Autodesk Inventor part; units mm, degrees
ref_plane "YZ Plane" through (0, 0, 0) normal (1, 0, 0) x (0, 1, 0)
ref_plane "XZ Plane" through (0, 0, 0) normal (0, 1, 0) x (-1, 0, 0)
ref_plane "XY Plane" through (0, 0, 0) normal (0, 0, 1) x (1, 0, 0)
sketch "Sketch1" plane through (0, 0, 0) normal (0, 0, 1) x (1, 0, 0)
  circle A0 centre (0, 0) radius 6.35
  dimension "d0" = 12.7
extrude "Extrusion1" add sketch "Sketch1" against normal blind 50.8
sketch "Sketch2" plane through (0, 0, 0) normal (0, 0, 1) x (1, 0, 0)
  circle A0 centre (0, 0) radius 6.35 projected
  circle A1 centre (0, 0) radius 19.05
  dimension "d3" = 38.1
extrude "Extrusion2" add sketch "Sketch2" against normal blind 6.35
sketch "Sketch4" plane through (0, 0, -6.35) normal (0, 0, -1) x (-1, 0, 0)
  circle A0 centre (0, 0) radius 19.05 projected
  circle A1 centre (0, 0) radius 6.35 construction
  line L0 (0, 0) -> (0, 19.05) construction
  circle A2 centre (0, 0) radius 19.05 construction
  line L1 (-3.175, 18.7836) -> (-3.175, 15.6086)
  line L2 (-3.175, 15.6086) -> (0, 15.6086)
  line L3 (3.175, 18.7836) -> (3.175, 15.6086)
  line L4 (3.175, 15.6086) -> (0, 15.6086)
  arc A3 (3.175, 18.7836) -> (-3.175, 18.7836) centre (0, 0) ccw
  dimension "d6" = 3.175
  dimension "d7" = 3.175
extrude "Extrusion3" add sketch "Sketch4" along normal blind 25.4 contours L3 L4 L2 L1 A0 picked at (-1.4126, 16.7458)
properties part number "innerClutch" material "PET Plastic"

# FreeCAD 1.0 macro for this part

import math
import FreeCAD as App
import Part
import Sketcher
Q = App.Units.Quantity

doc = App.newDocument("Part")
body = doc.addObject("PartDesign::Body", "Body")

# Sketch on XY plane
sketch1 = body.newObject("Sketcher::SketchObject", "Sketch")
sketch1.AttachmentSupport = (doc.getObject("XY_Plane"), [""])
sketch1.MapMode = "FlatFace"
sketch1.addGeometry(Part.Circle(App.Vector(0, 0, 0), App.Vector(0, 0, 1), 6.35), False)
sketch1.addConstraint([
    Sketcher.Constraint("Coincident", 0, 3, -1, 1),
    Sketcher.Constraint("Diameter", 0, Q("0.5 in")),
])
pad1 = body.newObject("PartDesign::Pad", "Pad")
pad1.Profile = sketch1
pad1.Length = Q("2 in")
pad1.Reversed = True

# Sketch on XY plane
sketch2 = body.newObject("Sketcher::SketchObject", "Sketch001")
sketch2.AttachmentSupport = (doc.getObject("XY_Plane"), [""])
sketch2.MapMode = "FlatFace"
sketch2.addGeometry([
    Part.Circle(App.Vector(0, 0, 0), App.Vector(0, 0, 1), 19.05),
    Part.Circle(App.Vector(0, 0, 0), App.Vector(0, 0, 1), 6.35),
], False)
sketch2.addConstraint([
    Sketcher.Constraint("Coincident", 0, 3, -1, 1),
    Sketcher.Constraint("Coincident", 1, 3, -1, 1),
    Sketcher.Constraint("Diameter", 0, Q("1.5 in")),
    Sketcher.Constraint("Diameter", 1, Q("0.5 in")),
])
pad2 = body.newObject("PartDesign::Pad", "Pad001")
pad2.Profile = sketch2
pad2.Length = Q("0.25 in")
pad2.Reversed = True

# Sketch on XY plane
sketch3 = body.newObject("Sketcher::SketchObject", "Sketch002")
sketch3.AttachmentSupport = (doc.getObject("XY_Plane"), [""])
sketch3.MapMode = "FlatFace"
sketch3.AttachmentOffset = App.Placement(App.Vector(0, 0, -0.25 * 25.4), App.Rotation())
sketch3.addGeometry([
    Part.LineSegment(App.Vector(-3.175, 15.6086, 0), App.Vector(-3.175, 18.7836, 0)),
    Part.ArcOfCircle(Part.Circle(App.Vector(0, 0, 0), App.Vector(0, 0, 1), 19.05), math.radians(80.405955), math.radians(99.594045)),
    Part.LineSegment(App.Vector(3.175, 18.7836, 0), App.Vector(3.175, 15.6086, 0)),
    Part.LineSegment(App.Vector(3.175, 15.6086, 0), App.Vector(-3.175, 15.6086, 0)),
], False)
sketch3.addConstraint([
    Sketcher.Constraint("Coincident", 0, 2, 1, 2),
    Sketcher.Constraint("Coincident", 1, 1, 2, 1),
    Sketcher.Constraint("Coincident", 2, 2, 3, 1),
    Sketcher.Constraint("Coincident", 3, 2, 0, 1),
    Sketcher.Constraint("Vertical", 0),
    Sketcher.Constraint("Vertical", 2),
    Sketcher.Constraint("Horizontal", 3),
    Sketcher.Constraint("Coincident", 1, 3, -1, 1),
    Sketcher.Constraint("Horizontal", 0, 2, 1, 1),
    Sketcher.Constraint("DistanceY", 0, 1, 0, 2, Q("0.125 in")),
    Sketcher.Constraint("Radius", 1, Q("0.75 in")),
    Sketcher.Constraint("DistanceX", 0, 2, -1, 1, Q("0.125 in")),
])
pad3 = body.newObject("PartDesign::Pad", "Pad002")
pad3.Profile = sketch3
pad3.Length = Q("1 in")
pad3.Reversed = True

doc.recompute()
